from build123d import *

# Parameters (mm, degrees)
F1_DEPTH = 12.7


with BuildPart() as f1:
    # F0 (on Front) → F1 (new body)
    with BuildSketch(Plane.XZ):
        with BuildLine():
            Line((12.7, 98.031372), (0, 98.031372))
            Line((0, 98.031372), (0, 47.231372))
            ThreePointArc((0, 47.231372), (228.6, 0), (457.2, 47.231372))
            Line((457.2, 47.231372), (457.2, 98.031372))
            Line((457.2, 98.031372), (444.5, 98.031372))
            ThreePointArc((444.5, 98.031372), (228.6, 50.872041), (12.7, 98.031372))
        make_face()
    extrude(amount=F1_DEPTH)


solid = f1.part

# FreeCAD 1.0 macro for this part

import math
import FreeCAD as App
import Part
import Sketcher
from FreeCAD import Vector
Q = App.Units.Quantity

doc = App.newDocument("Part")
body = doc.addObject("PartDesign::Body", "Body")

sketch1 = body.newObject("Sketcher::SketchObject", "Sketch")
sketch1.AttachmentSupport = (doc.getObject("XZ_Plane"), [""])
sketch1.MapMode = "FlatFace"
sketch1.addGeometry(Part.LineSegment(Vector(13, 98, 0), Vector(0, 98, 0)), False)
sketch1.addGeometry(Part.LineSegment(Vector(0, 98, 0), Vector(0, 47, 0)), False)
sketch1.addGeometry(Part.ArcOfCircle(Part.Circle(Vector(229, 577, 0), Vector(0, 0, 1), 577), math.radians(-113), math.radians(-67)), False)
sketch1.addGeometry(Part.LineSegment(Vector(457, 47, 0), Vector(457, 98, 0)), False)
sketch1.addGeometry(Part.LineSegment(Vector(457, 98, 0), Vector(444, 98, 0)), False)
sketch1.addGeometry(Part.ArcOfCircle(Part.Circle(Vector(229, 569, 0), Vector(0, 0, 1), 518), math.radians(-115), math.radians(-65)), False)
sketch1.addConstraint(Sketcher.Constraint("Coincident", 0, 2, 1, 1))
sketch1.addConstraint(Sketcher.Constraint("Coincident", 1, 2, 2, 1))
sketch1.addConstraint(Sketcher.Constraint("Coincident", 2, 2, 3, 1))
sketch1.addConstraint(Sketcher.Constraint("Coincident", 3, 2, 4, 1))
sketch1.addConstraint(Sketcher.Constraint("Coincident", 4, 2, 5, 2))
sketch1.addConstraint(Sketcher.Constraint("Coincident", 5, 1, 0, 1))
sketch1.addConstraint(Sketcher.Constraint("Horizontal", 0))
sketch1.addConstraint(Sketcher.Constraint("Vertical", 1))
sketch1.addConstraint(Sketcher.Constraint("Vertical", 3))
sketch1.addConstraint(Sketcher.Constraint("Horizontal", 4))
sketch1.addConstraint(Sketcher.Constraint("PointOnObject", 0, 2, -2))
sketch1.addConstraint(Sketcher.Constraint("Horizontal", 1, 2, 2, 2))
sketch1.addConstraint(Sketcher.Constraint("Horizontal", 0, 2, 3, 2))
sketch1.addConstraint(Sketcher.Constraint("Vertical", 2, 3, 5, 3))
sketch1.addConstraint(Sketcher.Constraint("DistanceY", 1, 2, 1, 1, Q("2 in")))
sketch1.addConstraint(Sketcher.Constraint("DistanceX", 0, 2, 0, 1, Q("0.5 in")))
sketch1.addConstraint(Sketcher.Constraint("DistanceX", -1, 1, 2, 3, Q("9 in")))
sketch1.addConstraint(Sketcher.Constraint("Radius", 2, Q("576.828072 mm")))
sketch1.addConstraint(Sketcher.Constraint("Radius", 5, Q("517.785255 mm")))
sketch1.addConstraint(Sketcher.Constraint("DistanceY", -1, 1, 2, 3, Q("576.828072 mm")))
pad1 = body.newObject("PartDesign::Pad", "Pad")
pad1.Profile = sketch1
pad1.Length = Q("0.5 in")

doc.recompute()
